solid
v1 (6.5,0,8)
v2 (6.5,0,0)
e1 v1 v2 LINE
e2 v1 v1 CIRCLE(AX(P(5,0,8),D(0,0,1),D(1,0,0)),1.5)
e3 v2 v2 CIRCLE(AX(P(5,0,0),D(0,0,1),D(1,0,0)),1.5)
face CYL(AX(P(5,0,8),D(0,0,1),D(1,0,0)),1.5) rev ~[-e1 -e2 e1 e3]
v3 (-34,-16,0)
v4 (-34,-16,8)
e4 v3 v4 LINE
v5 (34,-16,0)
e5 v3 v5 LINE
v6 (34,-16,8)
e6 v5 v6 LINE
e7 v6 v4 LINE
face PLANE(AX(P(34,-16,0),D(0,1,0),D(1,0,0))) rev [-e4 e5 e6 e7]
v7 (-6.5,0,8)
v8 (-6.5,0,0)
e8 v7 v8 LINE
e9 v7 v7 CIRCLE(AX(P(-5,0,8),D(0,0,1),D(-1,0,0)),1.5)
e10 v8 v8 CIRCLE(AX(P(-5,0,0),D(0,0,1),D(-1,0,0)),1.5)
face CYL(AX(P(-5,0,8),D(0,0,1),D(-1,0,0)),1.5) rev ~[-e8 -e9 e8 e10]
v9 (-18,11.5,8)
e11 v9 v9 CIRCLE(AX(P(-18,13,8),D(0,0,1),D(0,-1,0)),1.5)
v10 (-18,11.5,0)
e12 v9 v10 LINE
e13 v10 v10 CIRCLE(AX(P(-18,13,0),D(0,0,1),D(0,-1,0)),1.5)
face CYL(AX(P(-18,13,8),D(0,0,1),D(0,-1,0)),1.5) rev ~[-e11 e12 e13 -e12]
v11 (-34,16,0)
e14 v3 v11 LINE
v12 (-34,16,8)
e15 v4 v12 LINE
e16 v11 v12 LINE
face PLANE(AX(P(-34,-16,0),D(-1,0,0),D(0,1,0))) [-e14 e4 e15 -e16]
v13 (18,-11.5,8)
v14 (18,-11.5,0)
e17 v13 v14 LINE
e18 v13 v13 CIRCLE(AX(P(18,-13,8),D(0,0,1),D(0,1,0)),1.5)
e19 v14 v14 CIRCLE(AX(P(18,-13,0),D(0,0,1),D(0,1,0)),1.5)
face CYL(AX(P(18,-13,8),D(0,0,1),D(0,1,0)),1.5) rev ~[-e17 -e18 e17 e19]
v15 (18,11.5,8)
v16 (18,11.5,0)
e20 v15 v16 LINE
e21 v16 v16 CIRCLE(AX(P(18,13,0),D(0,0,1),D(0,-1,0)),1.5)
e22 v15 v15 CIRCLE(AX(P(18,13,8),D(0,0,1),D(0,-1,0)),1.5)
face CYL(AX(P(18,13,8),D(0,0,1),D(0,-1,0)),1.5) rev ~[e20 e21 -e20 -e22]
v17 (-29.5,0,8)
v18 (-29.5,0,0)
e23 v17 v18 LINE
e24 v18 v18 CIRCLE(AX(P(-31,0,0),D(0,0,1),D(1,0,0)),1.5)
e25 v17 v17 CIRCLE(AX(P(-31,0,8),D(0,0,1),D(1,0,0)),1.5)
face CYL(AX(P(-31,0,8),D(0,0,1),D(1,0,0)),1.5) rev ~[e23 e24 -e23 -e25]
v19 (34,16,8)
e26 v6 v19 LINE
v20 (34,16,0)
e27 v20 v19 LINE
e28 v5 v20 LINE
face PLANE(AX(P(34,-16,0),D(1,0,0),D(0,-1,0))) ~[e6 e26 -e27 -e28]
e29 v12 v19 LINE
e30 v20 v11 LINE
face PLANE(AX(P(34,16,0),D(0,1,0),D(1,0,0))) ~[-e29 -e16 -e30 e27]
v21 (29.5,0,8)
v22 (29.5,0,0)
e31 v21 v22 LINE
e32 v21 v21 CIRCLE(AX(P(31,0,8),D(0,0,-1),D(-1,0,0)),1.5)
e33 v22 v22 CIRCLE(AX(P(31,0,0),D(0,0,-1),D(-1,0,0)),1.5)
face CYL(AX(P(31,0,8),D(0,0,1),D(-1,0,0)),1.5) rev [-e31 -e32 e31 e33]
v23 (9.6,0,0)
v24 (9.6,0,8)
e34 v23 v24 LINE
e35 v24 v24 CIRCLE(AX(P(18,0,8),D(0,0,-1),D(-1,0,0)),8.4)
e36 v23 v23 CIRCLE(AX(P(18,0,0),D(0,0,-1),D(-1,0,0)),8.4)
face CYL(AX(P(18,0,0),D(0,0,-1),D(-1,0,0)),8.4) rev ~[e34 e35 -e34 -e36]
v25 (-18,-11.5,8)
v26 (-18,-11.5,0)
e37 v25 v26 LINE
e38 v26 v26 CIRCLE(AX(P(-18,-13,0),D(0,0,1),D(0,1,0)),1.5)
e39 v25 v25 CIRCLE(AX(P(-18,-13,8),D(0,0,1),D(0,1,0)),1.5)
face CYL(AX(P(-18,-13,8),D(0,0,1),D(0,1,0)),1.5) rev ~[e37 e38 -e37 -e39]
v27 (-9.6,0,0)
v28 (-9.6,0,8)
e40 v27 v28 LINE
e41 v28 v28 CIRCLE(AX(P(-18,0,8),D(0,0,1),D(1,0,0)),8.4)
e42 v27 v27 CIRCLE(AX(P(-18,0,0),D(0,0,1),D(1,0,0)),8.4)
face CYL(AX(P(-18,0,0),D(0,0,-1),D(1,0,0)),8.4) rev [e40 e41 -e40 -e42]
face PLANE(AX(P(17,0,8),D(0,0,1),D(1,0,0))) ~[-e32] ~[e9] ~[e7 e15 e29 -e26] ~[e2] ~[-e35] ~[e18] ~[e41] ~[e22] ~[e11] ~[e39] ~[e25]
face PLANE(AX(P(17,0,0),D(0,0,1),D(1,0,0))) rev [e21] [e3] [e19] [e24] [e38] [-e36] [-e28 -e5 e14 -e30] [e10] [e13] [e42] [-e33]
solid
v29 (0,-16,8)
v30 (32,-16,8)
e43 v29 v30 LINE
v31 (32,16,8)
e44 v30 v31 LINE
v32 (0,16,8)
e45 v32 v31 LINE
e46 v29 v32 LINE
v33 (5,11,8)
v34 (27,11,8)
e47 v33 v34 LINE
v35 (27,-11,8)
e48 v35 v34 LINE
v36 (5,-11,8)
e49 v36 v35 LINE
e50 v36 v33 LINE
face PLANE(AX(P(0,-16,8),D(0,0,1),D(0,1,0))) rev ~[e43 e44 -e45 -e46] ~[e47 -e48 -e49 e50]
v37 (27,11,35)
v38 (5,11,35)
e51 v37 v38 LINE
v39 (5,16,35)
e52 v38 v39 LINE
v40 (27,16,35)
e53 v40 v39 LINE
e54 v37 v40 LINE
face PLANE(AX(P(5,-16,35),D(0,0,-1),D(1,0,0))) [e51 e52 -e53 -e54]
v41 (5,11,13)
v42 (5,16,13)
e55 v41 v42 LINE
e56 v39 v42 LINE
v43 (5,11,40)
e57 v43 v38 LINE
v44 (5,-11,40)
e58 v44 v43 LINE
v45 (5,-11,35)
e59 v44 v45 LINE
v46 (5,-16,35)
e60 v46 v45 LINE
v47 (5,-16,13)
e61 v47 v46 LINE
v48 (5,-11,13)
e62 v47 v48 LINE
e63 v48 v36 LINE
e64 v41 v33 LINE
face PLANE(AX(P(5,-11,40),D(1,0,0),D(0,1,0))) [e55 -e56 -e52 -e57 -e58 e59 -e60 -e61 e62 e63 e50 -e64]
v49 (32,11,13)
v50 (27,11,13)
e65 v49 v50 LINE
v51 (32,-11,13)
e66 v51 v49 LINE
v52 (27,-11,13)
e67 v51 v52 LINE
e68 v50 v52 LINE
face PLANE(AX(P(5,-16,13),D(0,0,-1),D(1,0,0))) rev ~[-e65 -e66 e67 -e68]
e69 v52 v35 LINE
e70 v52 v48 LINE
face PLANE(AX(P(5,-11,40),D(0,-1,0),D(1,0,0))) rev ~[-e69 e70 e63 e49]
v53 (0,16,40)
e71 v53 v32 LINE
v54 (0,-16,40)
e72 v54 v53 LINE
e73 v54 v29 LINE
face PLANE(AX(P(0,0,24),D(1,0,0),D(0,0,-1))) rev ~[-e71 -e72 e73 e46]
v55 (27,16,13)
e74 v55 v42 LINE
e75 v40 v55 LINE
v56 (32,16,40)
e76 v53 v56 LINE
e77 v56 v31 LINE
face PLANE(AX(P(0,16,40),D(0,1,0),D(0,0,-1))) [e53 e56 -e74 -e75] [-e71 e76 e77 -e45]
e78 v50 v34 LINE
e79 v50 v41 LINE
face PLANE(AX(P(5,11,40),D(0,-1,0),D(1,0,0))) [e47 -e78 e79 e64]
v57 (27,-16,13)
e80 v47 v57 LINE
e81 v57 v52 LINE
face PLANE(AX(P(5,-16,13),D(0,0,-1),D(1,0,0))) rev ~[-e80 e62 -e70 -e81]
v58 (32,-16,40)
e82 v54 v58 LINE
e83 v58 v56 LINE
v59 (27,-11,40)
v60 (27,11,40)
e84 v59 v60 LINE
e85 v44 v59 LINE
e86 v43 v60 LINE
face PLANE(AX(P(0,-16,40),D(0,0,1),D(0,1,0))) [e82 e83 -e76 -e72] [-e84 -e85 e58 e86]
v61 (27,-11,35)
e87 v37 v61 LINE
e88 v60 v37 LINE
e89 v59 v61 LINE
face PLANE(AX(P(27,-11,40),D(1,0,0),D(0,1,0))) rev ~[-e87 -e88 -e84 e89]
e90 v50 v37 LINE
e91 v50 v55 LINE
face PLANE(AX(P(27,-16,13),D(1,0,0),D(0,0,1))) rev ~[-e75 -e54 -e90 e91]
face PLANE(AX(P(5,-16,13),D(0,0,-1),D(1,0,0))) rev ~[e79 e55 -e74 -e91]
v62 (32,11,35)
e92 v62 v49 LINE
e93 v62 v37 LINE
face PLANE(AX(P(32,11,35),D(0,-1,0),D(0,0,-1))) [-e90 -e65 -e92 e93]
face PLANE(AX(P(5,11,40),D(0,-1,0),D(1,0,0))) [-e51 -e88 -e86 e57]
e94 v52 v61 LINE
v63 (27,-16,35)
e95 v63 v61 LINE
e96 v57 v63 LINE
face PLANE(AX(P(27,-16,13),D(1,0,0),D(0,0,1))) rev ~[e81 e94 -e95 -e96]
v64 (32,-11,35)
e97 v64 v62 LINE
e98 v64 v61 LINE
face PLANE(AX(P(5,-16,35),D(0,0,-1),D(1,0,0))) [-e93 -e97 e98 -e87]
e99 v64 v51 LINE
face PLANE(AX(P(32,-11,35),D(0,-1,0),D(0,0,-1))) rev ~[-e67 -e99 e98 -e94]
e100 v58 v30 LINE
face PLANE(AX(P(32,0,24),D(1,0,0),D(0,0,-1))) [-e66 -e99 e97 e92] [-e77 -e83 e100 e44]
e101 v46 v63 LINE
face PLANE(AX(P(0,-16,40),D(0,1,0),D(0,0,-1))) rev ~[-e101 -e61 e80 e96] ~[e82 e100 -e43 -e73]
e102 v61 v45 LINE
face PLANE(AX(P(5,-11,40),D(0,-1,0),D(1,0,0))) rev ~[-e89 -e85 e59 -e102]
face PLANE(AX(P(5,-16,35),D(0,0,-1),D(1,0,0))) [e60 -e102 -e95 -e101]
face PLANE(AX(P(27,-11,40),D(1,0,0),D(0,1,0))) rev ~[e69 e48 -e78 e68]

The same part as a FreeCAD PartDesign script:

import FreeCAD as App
import Part
import Sketcher

V = App.Vector
Q = App.Units.Quantity


def add_polygon(sketch, points):
    """Adds a closed chain of lines whose ends are joined by coincident constraints."""
    first, n = sketch.GeometryCount, len(points)
    for a, b in zip(points, points[1:] + points[:1]):
        sketch.addGeometry(Part.LineSegment(App.Vector(*a, 0), App.Vector(*b, 0)), False)
    for i in range(n):
        sketch.addConstraint(Sketcher.Constraint("Coincident", first + i, 2, first + (i + 1) % n, 1))

doc = App.newDocument("Part")
body = doc.addObject("PartDesign::Body", "Body")

sketch1 = doc.addObject("Sketcher::SketchObject", "Sketch")
body.addObject(sketch1)
sketch1.AttachmentSupport = (doc.XY_Plane, [""])
sketch1.MapMode = "FlatFace"
add_polygon(sketch1, [(-34, 16), (-34, -16), (0, -16), (0, 16)])
sketch1.addGeometry(Part.Circle(V(-18, 0, 0), V(0, 0, 1), 8), False)
sketch1.addConstraint([
    Sketcher.Constraint("Vertical", 0),
    Sketcher.Constraint("Horizontal", 1),
    Sketcher.Constraint("Vertical", 2),
    Sketcher.Constraint("Horizontal", 3),
    Sketcher.Constraint("Symmetric", 1, 2, 2, 2, -1, 1),
    Sketcher.Constraint("PointOnObject", 4, 3, -1),
    Sketcher.Constraint("Diameter", 4, Q("16.8 mm")),
    Sketcher.Constraint("DistanceX", 1, 1, 1, 2, Q("34 mm")),
    Sketcher.Constraint("DistanceY", 0, 2, 0, 1, Q("32 mm")),
    Sketcher.Constraint("DistanceX", 4, 3, -1, 1, Q("18 mm")),
])
pad1 = doc.addObject("PartDesign::Pad", "Pad")
body.addObject(pad1)
pad1.Profile = sketch1
pad1.Length = 8

sketch2 = doc.addObject("Sketcher::SketchObject", "Sketch001")
body.addObject(sketch2)
sketch2.AttachmentSupport = (doc.XY_Plane, [""])
sketch2.MapMode = "FlatFace"
sketch2.AttachmentOffset = App.Placement(V(0, 0, 8), App.Rotation())
sketch2.addGeometry(Part.Circle(V(-31, 0, 0), V(0, 0, 1), 1.5), False)
sketch2.addConstraint([
    Sketcher.Constraint("PointOnObject", 0, 3, -1),
    Sketcher.Constraint("Diameter", 0, Q("3 mm")),
    Sketcher.Constraint("DistanceX", 0, 3, -1, 1, Q("31 mm")),
])
pocket1 = doc.addObject("PartDesign::Pocket", "Pocket")
body.addObject(pocket1)
pocket1.Profile = sketch2
pocket1.Length = 8
doc.recompute()

datumline = doc.addObject("PartDesign::Line", "DatumLine")
body.addObject(datumline)
datumline.Placement = App.Placement(V(-18, 0, 0), App.Rotation(V(0, 0, 1), V(0, 0, 1)))
polarpattern = doc.addObject("PartDesign::PolarPattern", "PolarPattern")
body.addObject(polarpattern)
polarpattern.Originals = [pocket1]
polarpattern.Axis = (datumline, [""])
polarpattern.Angle = 360
polarpattern.Occurrences = 4
body.Tip = polarpattern
doc.recompute()

mirrored = doc.addObject("PartDesign::Mirrored", "Mirrored")
body.addObject(mirrored)
mirrored.Originals = [pad1, pocket1]
mirrored.MirrorPlane = (doc.YZ_Plane, [""])
body.Tip = mirrored

sketch3 = doc.addObject("Sketcher::SketchObject", "Sketch002")
body.addObject(sketch3)
sketch3.AttachmentSupport = (doc.XY_Plane, [""])
sketch3.MapMode = "FlatFace"
sketch3.AttachmentOffset = App.Placement(V(0, 0, 8), App.Rotation())
sketch3.addGeometry(Part.Circle(V(18, -13, 0), V(0, 0, 1), 1.5), False)
sketch3.addConstraint([
    Sketcher.Constraint("Diameter", 0, Q("3 mm")),
    Sketcher.Constraint("DistanceX", -1, 1, 0, 3, Q("18 mm")),
    Sketcher.Constraint("DistanceY", 0, 3, -1, 1, Q("13 mm")),
])
pocket2 = doc.addObject("PartDesign::Pocket", "Pocket001")
body.addObject(pocket2)
pocket2.Profile = sketch3
pocket2.Length = 8

sketch4 = doc.addObject("Sketcher::SketchObject", "Sketch003")
body.addObject(sketch4)
sketch4.AttachmentSupport = (doc.XY_Plane, [""])
sketch4.MapMode = "FlatFace"
sketch4.AttachmentOffset = App.Placement(V(0, 0, 8), App.Rotation())
sketch4.addGeometry(Part.Circle(V(5, 0, 0), V(0, 0, 1), 1.5), False)
sketch4.addConstraint([
    Sketcher.Constraint("PointOnObject", 0, 3, -1),
    Sketcher.Constraint("Diameter", 0, Q("3 mm")),
    Sketcher.Constraint("DistanceX", -1, 1, 0, 3, Q("5 mm")),
])
pocket3 = doc.addObject("PartDesign::Pocket", "Pocket002")
body.addObject(pocket3)
pocket3.Profile = sketch4
pocket3.Length = 8

sketch5 = doc.addObject("Sketcher::SketchObject", "Sketch004")
body.addObject(sketch5)
sketch5.AttachmentSupport = (doc.XY_Plane, [""])
sketch5.MapMode = "FlatFace"
sketch5.AttachmentOffset = App.Placement(V(0, 0, 8), App.Rotation())
sketch5.addGeometry(Part.Circle(V(18, 13, 0), V(0, 0, 1), 1.5), False)
sketch5.addConstraint([
    Sketcher.Constraint("Diameter", 0, Q("3 mm")),
    Sketcher.Constraint("DistanceX", -1, 1, 0, 3, Q("18 mm")),
    Sketcher.Constraint("DistanceY", -1, 1, 0, 3, Q("13 mm")),
])
pocket4 = doc.addObject("PartDesign::Pocket", "Pocket003")
body.addObject(pocket4)
pocket4.Profile = sketch5
pocket4.Length = 8
body2 = doc.addObject("PartDesign::Body", "Body001")

sketch6 = doc.addObject("Sketcher::SketchObject", "Sketch005")
body2.addObject(sketch6)
sketch6.AttachmentSupport = (doc.getObject("YZ_Plane001"), [""])
sketch6.MapMode = "FlatFace"
add_polygon(sketch6, [(16, 40), (-16, 40), (-16, 8), (16, 8)])
sketch6.addConstraint([
    Sketcher.Constraint("Horizontal", 0),
    Sketcher.Constraint("Vertical", 1),
    Sketcher.Constraint("Horizontal", 2),
    Sketcher.Constraint("Vertical", 3),
    Sketcher.Constraint("Equal", 2, 1),
    Sketcher.Constraint("DistanceX", 0, 2, 0, 1, Q("32 mm")),
    Sketcher.Constraint("DistanceX", 0, 2, -1, 1, Q("16 mm")),
    Sketcher.Constraint("DistanceY", -1, 1, 0, 2, Q("40 mm")),
])
pad2 = doc.addObject("PartDesign::Pad", "Pad001")
body2.addObject(pad2)
pad2.Profile = sketch6
pad2.Length = 32

sketch7 = doc.addObject("Sketcher::SketchObject", "Sketch006")
body2.addObject(sketch7)
sketch7.AttachmentSupport = (doc.getObject("YZ_Plane001"), [""])
sketch7.MapMode = "FlatFace"
sketch7.AttachmentOffset = App.Placement(V(0, 0, 32), App.Rotation())
add_polygon(sketch7, [(11, 35), (-11, 35), (-11, 13), (11, 13)])
sketch7.addConstraint([
    Sketcher.Constraint("Horizontal", 0),
    Sketcher.Constraint("Vertical", 1),
    Sketcher.Constraint("Horizontal", 2),
    Sketcher.Constraint("Vertical", 3),
    Sketcher.Constraint("Equal", 2, 1),
    Sketcher.Constraint("DistanceX", 0, 2, 0, 1, Q("22 mm")),
    Sketcher.Constraint("DistanceX", 0, 2, -1, 1, Q("11 mm")),
    Sketcher.Constraint("DistanceY", -1, 1, 0, 2, Q("35 mm")),
])
pocket5 = doc.addObject("PartDesign::Pocket", "Pocket004")
body2.addObject(pocket5)
pocket5.Profile = sketch7
pocket5.Length = 18

sketch8 = doc.addObject("Sketcher::SketchObject", "Sketch007")
body2.addObject(sketch8)
sketch8.AttachmentSupport = (doc.getObject("XZ_Plane001"), [""])
sketch8.MapMode = "FlatFace"
sketch8.AttachmentOffset = App.Placement(V(0, 0, 16), App.Rotation())
add_polygon(sketch8, [(5, 35), (5, 13), (27, 13), (27, 35)])
sketch8.addConstraint([
    Sketcher.Constraint("Vertical", 0),
    Sketcher.Constraint("Horizontal", 1),
    Sketcher.Constraint("Vertical", 2),
    Sketcher.Constraint("Horizontal", 3),
    Sketcher.Constraint("Equal", 3, 0),
    Sketcher.Constraint("DistanceX", 1, 1, 1, 2, Q("22 mm")),
    Sketcher.Constraint("DistanceX", -1, 1, 0, 2, Q("5 mm")),
    Sketcher.Constraint("DistanceY", -1, 1, 0, 2, Q("13 mm")),
])
pocket6 = doc.addObject("PartDesign::Pocket", "Pocket005")
body2.addObject(pocket6)
pocket6.Profile = sketch8
pocket6.Type = "ThroughAll"

sketch9 = doc.addObject("Sketcher::SketchObject", "Sketch008")
body2.addObject(sketch9)
sketch9.AttachmentSupport = (doc.getObject("XY_Plane001"), [""])
sketch9.MapMode = "FlatFace"
sketch9.AttachmentOffset = App.Placement(V(0, 0, 40), App.Rotation())
add_polygon(sketch9, [(5, 11), (5, -11), (27, -11), (27, 11)])
sketch9.addConstraint([
    Sketcher.Constraint("Vertical", 0),
    Sketcher.Constraint("Horizontal", 1),
    Sketcher.Constraint("Vertical", 2),
    Sketcher.Constraint("Horizontal", 3),
    Sketcher.Constraint("Equal", 3, 0),
    Sketcher.Constraint("DistanceX", 1, 1, 1, 2, Q("22 mm")),
    Sketcher.Constraint("DistanceX", -1, 1, 0, 2, Q("5 mm")),
    Sketcher.Constraint("DistanceY", 0, 2, -1, 1, Q("11 mm")),
])
pocket7 = doc.addObject("PartDesign::Pocket", "Pocket006")
body2.addObject(pocket7)
pocket7.Profile = sketch9
pocket7.Length = 32

doc.recompute()
